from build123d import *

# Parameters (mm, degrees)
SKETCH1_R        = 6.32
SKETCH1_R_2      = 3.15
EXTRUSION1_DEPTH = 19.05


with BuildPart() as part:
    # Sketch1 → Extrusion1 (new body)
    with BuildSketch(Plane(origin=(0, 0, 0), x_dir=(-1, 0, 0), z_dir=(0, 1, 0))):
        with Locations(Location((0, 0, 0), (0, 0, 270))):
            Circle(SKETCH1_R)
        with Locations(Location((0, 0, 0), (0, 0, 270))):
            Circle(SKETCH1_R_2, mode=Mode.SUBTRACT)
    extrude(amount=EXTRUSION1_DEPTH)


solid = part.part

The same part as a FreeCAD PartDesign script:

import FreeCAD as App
import Part
import Sketcher
Q = App.Units.Quantity

doc = App.newDocument("Part")
params = doc.addObject("Spreadsheet::Sheet", "Params")
for row, (alias, value) in enumerate([
    ("sketch1_diameter", "6.3 mm"),
    ("sketch1_diameter2", "12.64 mm"),
    ("pad1_length", "19.05 mm"),
], start=1):
    params.set(f"A{row}", alias)
    params.set(f"B{row}", "=" + value)
    params.setAlias(f"B{row}", alias)

body = doc.addObject("PartDesign::Body", "Body")

# Sketch on XZ plane
sketch1 = body.newObject("Sketcher::SketchObject", "Sketch")
sketch1.AttachmentSupport = (doc.getObject("XZ_Plane"), [""])
sketch1.MapMode = "FlatFace"
sketch1.addGeometry([
    Part.Circle(App.Vector(0, 0, 0), App.Vector(0, 0, 1), 6.3),
    Part.Circle(App.Vector(0, 0, 0), App.Vector(0, 0, 1), 3.1),
], False)
sketch1.addConstraint([
    Sketcher.Constraint("Coincident", 0, 3, -1, 1),
    Sketcher.Constraint("Coincident", 1, 3, -1, 1),
    Sketcher.Constraint("Diameter", 1, Q("6.3 mm")),
    Sketcher.Constraint("Diameter", 0, Q("12.64 mm")),
])
sketch1.setExpression("Constraints[2]", "Params.sketch1_diameter")
sketch1.setExpression("Constraints[3]", "Params.sketch1_diameter2")
pad1 = body.newObject("PartDesign::Pad", "Pad")
pad1.Profile = sketch1
pad1.setExpression("Length", "Params.pad1_length")
pad1.Reversed = True

doc.recompute()
